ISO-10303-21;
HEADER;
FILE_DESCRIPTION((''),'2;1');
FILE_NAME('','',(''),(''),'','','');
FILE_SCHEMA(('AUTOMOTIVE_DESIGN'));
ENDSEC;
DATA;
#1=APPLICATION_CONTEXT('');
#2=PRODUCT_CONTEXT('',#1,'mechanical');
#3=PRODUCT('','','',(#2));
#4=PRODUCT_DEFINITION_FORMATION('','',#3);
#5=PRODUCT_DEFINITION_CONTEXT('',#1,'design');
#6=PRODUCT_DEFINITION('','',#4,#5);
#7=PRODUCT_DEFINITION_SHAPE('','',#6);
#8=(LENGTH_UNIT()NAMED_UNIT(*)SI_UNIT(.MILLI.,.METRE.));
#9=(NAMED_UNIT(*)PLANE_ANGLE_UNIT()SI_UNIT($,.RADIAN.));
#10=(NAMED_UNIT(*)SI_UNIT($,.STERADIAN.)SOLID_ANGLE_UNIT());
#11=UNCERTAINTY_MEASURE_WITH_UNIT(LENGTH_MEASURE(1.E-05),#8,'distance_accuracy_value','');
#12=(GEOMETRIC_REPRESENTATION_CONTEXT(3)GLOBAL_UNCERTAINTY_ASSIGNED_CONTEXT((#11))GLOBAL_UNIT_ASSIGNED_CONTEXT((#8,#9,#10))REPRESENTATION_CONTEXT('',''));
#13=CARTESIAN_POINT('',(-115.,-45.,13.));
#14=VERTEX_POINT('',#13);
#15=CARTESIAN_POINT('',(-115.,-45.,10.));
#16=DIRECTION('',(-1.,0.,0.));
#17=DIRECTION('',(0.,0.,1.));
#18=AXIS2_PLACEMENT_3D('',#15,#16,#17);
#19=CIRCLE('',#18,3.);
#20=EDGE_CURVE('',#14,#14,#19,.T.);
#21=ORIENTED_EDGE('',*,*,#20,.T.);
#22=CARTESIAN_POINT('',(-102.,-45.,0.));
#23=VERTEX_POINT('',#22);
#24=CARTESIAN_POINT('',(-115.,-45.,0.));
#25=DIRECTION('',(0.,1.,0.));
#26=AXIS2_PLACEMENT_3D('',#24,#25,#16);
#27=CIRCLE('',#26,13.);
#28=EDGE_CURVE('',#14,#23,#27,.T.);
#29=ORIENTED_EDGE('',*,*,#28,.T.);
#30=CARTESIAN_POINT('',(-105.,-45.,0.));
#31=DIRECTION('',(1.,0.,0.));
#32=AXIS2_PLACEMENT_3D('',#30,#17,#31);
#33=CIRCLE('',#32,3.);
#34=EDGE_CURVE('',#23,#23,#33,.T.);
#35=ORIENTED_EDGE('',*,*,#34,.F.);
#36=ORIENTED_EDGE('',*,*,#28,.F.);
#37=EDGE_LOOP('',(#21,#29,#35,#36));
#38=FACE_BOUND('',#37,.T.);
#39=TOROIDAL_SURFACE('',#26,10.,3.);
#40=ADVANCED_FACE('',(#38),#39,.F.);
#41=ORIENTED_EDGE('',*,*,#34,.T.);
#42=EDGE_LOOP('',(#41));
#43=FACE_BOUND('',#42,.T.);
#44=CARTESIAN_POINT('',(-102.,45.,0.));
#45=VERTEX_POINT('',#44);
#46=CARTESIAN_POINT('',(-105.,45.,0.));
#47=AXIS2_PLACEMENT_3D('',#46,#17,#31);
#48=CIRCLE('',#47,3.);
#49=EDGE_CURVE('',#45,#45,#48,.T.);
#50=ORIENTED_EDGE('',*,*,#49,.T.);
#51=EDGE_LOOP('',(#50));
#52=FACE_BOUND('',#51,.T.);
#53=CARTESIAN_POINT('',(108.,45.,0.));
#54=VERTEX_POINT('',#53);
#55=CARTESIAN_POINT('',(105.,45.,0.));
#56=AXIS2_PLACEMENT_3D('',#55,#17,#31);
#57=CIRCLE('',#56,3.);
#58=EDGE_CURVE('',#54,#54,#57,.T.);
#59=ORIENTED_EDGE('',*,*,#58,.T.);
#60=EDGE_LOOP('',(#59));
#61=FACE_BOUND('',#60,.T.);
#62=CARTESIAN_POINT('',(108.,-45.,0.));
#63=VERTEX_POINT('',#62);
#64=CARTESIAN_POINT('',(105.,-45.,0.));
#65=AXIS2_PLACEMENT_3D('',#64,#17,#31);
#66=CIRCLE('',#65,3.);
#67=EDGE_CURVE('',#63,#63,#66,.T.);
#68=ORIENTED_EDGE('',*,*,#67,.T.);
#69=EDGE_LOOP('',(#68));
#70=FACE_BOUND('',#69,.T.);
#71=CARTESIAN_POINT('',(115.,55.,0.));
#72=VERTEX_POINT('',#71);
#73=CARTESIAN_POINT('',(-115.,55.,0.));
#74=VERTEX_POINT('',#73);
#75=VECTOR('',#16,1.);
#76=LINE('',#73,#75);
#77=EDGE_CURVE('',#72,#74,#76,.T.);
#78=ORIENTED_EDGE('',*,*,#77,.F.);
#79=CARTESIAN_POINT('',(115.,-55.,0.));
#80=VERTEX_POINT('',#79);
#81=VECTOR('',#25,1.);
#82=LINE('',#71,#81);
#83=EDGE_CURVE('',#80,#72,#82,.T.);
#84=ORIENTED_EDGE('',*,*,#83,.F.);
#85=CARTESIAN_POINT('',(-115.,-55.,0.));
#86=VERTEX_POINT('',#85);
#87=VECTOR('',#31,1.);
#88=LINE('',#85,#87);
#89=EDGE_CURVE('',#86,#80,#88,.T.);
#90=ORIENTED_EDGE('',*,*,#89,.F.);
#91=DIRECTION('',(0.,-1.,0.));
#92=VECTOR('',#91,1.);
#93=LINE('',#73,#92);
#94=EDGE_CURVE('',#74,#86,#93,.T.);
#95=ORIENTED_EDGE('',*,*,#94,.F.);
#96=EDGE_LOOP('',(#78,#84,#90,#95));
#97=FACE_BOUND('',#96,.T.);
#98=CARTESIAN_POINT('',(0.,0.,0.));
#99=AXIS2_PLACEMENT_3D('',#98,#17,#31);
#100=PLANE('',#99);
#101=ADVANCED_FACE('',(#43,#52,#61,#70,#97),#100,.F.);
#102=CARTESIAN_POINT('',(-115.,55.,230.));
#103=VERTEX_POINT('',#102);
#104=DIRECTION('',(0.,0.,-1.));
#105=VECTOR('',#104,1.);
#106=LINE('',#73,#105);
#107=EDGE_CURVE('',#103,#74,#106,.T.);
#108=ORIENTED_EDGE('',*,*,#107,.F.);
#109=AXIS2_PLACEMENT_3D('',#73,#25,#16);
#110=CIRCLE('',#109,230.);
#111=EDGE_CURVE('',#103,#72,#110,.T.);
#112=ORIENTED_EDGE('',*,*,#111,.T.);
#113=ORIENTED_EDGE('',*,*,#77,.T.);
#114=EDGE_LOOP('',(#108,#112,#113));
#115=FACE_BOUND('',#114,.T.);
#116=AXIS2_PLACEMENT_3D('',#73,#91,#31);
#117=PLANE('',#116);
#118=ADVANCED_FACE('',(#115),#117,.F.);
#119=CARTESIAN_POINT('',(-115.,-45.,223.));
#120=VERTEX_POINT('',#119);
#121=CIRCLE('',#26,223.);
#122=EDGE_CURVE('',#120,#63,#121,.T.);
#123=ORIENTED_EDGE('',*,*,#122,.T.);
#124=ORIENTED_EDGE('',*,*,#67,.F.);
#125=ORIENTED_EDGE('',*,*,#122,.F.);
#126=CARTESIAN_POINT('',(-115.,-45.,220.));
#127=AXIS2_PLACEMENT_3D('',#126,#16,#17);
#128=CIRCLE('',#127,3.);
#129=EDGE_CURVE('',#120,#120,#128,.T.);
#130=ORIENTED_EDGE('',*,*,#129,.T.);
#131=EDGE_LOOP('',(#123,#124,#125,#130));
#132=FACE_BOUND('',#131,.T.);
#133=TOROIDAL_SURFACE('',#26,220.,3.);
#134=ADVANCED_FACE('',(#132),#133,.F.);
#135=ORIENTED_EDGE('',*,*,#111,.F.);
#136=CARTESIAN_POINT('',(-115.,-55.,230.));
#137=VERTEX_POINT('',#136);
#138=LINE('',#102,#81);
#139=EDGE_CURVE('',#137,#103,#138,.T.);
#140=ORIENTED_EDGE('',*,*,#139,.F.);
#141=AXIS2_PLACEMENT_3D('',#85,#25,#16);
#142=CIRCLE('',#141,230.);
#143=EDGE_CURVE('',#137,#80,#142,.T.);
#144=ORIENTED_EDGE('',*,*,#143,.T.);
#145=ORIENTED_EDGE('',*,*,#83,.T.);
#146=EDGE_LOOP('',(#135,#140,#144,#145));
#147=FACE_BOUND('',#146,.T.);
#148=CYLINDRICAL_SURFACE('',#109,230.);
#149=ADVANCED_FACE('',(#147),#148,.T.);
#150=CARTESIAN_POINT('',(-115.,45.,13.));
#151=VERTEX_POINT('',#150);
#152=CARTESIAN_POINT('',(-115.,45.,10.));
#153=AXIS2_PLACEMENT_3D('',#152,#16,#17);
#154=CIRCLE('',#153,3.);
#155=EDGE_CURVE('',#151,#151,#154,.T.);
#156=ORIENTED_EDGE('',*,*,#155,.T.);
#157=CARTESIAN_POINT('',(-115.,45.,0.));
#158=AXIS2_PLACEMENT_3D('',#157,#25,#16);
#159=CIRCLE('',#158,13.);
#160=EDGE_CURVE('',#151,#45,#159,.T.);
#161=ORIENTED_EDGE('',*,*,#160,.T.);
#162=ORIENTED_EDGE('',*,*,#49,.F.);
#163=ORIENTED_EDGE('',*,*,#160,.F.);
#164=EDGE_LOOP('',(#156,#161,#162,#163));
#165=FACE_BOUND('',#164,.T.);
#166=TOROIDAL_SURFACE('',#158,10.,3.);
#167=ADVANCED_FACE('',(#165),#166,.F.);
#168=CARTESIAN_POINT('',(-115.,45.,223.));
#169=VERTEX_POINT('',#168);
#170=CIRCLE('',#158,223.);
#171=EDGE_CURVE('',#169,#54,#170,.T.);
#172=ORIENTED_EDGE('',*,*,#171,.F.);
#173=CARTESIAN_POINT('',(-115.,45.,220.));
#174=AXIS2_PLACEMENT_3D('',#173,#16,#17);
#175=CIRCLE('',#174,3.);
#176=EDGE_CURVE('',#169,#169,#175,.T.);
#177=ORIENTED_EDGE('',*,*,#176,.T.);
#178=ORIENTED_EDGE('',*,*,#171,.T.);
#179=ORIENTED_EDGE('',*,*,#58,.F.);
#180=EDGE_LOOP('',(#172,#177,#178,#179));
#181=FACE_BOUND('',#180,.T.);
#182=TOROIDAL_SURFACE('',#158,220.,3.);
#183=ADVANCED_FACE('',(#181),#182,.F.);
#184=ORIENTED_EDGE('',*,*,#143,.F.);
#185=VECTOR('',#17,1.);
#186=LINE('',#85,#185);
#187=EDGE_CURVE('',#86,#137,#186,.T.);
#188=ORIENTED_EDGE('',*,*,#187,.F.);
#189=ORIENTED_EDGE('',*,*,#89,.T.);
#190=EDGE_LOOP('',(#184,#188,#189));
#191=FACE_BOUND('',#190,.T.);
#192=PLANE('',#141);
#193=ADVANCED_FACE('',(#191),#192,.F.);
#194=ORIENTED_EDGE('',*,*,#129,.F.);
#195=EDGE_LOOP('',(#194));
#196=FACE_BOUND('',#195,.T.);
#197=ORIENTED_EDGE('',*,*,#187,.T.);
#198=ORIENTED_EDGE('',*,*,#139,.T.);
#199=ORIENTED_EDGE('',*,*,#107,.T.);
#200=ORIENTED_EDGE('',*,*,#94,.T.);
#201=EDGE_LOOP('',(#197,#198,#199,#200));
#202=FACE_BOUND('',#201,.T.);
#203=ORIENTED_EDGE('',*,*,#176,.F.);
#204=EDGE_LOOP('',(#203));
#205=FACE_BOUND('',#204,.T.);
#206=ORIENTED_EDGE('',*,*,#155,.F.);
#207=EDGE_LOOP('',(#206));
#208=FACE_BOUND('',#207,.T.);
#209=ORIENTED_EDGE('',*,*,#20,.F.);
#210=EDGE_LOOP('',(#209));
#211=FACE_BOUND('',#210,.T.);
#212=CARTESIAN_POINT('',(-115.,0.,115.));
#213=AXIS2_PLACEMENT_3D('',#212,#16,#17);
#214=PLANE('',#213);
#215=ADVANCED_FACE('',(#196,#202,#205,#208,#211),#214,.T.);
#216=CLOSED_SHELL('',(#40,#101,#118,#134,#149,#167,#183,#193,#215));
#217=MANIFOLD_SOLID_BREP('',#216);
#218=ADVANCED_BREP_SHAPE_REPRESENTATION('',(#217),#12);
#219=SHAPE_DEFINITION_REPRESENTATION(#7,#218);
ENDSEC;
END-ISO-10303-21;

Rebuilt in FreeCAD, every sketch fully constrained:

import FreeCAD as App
import Part
import Sketcher
from FreeCAD import Vector


def add_polygon(sketch, points):
    """Adds a closed chain of lines whose ends are joined by coincident constraints."""
    first, n = sketch.GeometryCount, len(points)
    for a, b in zip(points, points[1:] + points[:1]):
        sketch.addGeometry(Part.LineSegment(App.Vector(*a, 0), App.Vector(*b, 0)), False)
    for i in range(n):
        sketch.addConstraint(Sketcher.Constraint("Coincident", first + i, 2, first + (i + 1) % n, 1))

doc = App.newDocument("Part")
body = doc.addObject("PartDesign::Body", "Body")

# Sketch on XY plane
sketch1 = doc.addObject("Sketcher::SketchObject", "Sketch")
body.addObject(sketch1)
sketch1.AttachmentSupport = (doc.XY_Plane, [""])
sketch1.MapMode = "FlatFace"
add_polygon(sketch1, [(-115, 55), (-115, -55), (115, -55), (115, 55)])  # lines 0-3
sketch1.addGeometry(Part.Circle(Vector(-105, -45, 0), Vector(0, 0, 1), 3), False)  # 4
sketch1.addGeometry(Part.Circle(Vector(105, -45, 0), Vector(0, 0, 1), 3), False)  # 5
sketch1.addGeometry(Part.Circle(Vector(-105, 45, 0), Vector(0, 0, 1), 3), False)  # 6
sketch1.addGeometry(Part.Circle(Vector(105, 45, 0), Vector(0, 0, 1), 3), False)  # 7
sketch1.addGeometry(Part.LineSegment(Vector(-115, 55, 0), Vector(-115, -55, 0)), True)  # axis
sketch1.addConstraint([
    Sketcher.Constraint("Vertical", 0),
    Sketcher.Constraint("Horizontal", 1),
    Sketcher.Constraint("Vertical", 2),
    Sketcher.Constraint("Horizontal", 3),
    Sketcher.Constraint("Vertical", 8),
    Sketcher.Constraint("Coincident", 8, 1, 3, 2),
    Sketcher.Constraint("Equal", 4, 5),
    Sketcher.Constraint("Equal", 5, 6),
    Sketcher.Constraint("Equal", 6, 7),
    Sketcher.Constraint("Symmetric", 5, 3, 6, 3, -1, 1),
    Sketcher.Constraint("Symmetric", 4, 3, 7, 3, -1, 1),
    Sketcher.Constraint("Symmetric", 0, 2, 2, 2, -1, 1),
    Sketcher.Constraint("Symmetric", 4, 3, 5, 3, -2),
    Sketcher.Constraint("Horizontal", 1, 2, 8, 2),
    Sketcher.Constraint("Diameter", 4, 6.0),
    Sketcher.Constraint("DistanceX", 1, 1, 1, 2, 230.0),
    Sketcher.Constraint("DistanceY", 0, 2, 0, 1, 110.0),
    Sketcher.Constraint("DistanceX", 4, 3, -1, 1, 105.0),
    Sketcher.Constraint("DistanceY", 4, 3, -1, 1, 45.0),
])
revolution = doc.addObject("PartDesign::Revolution", "Revolution")
body.addObject(revolution)
revolution.Profile = sketch1
revolution.ReferenceAxis = (sketch1, ["Axis0"])
revolution.Angle = 90

doc.recompute()
